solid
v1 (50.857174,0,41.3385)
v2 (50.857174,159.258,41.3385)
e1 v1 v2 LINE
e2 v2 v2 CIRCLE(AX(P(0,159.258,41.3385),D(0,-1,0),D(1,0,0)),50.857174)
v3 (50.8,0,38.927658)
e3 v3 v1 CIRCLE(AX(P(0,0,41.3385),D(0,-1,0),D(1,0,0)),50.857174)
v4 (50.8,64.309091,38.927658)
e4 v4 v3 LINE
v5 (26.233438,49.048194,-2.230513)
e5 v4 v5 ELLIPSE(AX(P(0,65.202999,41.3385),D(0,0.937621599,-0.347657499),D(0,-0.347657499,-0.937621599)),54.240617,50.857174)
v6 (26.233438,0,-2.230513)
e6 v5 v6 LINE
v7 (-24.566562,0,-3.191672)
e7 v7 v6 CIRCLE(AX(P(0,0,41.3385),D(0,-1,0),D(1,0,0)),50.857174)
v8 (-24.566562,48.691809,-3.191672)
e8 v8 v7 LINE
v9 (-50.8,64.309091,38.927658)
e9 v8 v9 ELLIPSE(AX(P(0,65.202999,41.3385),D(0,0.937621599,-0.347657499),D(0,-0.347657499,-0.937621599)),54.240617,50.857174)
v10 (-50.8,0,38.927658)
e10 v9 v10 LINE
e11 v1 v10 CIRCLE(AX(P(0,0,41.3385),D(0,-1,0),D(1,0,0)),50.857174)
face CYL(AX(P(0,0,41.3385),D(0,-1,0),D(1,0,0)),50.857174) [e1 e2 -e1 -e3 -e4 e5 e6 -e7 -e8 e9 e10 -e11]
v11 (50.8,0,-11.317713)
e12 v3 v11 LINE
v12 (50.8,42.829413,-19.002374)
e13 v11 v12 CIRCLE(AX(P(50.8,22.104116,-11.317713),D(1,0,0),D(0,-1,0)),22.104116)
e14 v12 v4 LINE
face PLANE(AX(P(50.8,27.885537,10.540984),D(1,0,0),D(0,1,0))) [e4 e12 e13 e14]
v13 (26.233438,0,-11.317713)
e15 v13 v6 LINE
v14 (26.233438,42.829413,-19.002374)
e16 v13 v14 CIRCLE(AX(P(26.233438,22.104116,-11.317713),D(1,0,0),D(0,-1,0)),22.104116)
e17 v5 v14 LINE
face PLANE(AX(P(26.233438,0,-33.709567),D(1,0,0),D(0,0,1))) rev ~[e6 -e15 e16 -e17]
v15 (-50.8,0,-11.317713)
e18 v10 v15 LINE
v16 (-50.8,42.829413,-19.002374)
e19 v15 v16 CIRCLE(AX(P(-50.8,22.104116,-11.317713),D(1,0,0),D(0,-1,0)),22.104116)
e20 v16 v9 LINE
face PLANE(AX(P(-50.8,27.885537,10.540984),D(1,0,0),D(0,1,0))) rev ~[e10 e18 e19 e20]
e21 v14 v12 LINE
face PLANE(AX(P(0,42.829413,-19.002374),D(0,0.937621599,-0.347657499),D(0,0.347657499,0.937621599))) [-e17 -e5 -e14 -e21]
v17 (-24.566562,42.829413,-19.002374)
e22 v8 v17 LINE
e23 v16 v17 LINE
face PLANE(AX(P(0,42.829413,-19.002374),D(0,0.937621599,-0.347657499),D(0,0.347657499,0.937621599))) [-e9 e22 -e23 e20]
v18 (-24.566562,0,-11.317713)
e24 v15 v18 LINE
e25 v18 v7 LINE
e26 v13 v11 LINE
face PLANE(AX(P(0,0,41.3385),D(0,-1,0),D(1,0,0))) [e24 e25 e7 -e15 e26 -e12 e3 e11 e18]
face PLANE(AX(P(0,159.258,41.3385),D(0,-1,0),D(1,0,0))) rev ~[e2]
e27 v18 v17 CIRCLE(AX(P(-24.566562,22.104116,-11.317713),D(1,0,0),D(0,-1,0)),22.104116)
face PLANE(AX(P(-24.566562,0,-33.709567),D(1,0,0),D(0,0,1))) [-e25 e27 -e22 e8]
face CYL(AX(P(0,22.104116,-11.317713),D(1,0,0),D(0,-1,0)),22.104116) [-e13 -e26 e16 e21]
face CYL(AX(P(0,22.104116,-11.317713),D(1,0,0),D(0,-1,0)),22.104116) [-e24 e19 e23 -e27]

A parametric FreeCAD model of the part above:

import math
import FreeCAD as App
import Part
import Sketcher

V = App.Vector
Q = App.Units.Quantity

doc = App.newDocument("Part")
body = doc.addObject("PartDesign::Body", "Body")
body.AllowCompound = True

# Sketch on YZ plane
sketch1 = body.newObject("Sketcher::SketchObject", "Sketch")
sketch1.AttachmentSupport = (doc.getObject("YZ_Plane"), [""])
sketch1.MapMode = "FlatFace"
sketch1.addGeometry([
    Part.LineSegment(V(0, 40, 0), V(0, -11, 0)),
    Part.ArcOfCircle(Part.Circle(V(22, -11, 0), V(0, 0, 1), 22), math.radians(180), math.radians(340)),
    Part.LineSegment(V(43, -19, 0), V(65, 40, 0)),
    Part.LineSegment(V(65, 40, 0), V(0, 40, 0)),
], False)
sketch1.addConstraint([
    Sketcher.Constraint("Tangent", 0, 2, 1, 1),
    Sketcher.Constraint("Tangent", 1, 2, 2, 1),
    Sketcher.Constraint("Coincident", 2, 2, 3, 1),
    Sketcher.Constraint("Coincident", 3, 2, 0, 1),
    Sketcher.Constraint("Vertical", 0),
    Sketcher.Constraint("Horizontal", 3),
    Sketcher.Constraint("PointOnObject", 0, 2, -2),
    Sketcher.Constraint("Radius", 1, 22.104116),
    Sketcher.Constraint("Distance", 2, 63.28859),
    Sketcher.Constraint("DistanceX", 3, 2, 3, 1, 64.832166),
    Sketcher.Constraint("DistanceY", 1, 3, -1, 1, 11.317713),
])
pad1 = body.newObject("PartDesign::Pad", "Pad")
pad1.Profile = sketch1
pad1.Length = Q("4 in")
pad1.Midplane = True

# Sketch on XZ plane
sketch2 = body.newObject("Sketcher::SketchObject", "Sketch001")
sketch2.AttachmentSupport = (doc.getObject("XZ_Plane"), [""])
sketch2.MapMode = "FlatFace"
sketch2.addGeometry([
    Part.LineSegment(V(-25, 40, 0), V(-25, -34, 0)),
    Part.LineSegment(V(-25, -34, 0), V(26, -34, 0)),
    Part.LineSegment(V(26, -34, 0), V(26, 40, 0)),
    Part.LineSegment(V(26, 40, 0), V(-25, 40, 0)),
], False)
sketch2.addConstraint([
    Sketcher.Constraint("Coincident", 0, 2, 1, 1),
    Sketcher.Constraint("Coincident", 1, 2, 2, 1),
    Sketcher.Constraint("Coincident", 2, 2, 3, 1),
    Sketcher.Constraint("Coincident", 3, 2, 0, 1),
    Sketcher.Constraint("Vertical", 0),
    Sketcher.Constraint("Horizontal", 1),
    Sketcher.Constraint("Vertical", 2),
    Sketcher.Constraint("Horizontal", 3),
    Sketcher.Constraint("DistanceX", 1, 1, 1, 2, Q("2 in")),
    Sketcher.Constraint("DistanceY", 0, 2, 0, 1, Q("2.92 in")),
    Sketcher.Constraint("DistanceX", 0, 2, -1, 1, 24.566562),
    Sketcher.Constraint("DistanceY", 0, 2, -1, 1, 33.709567),
])
pocket1 = body.newObject("PartDesign::Pocket", "Pocket")
pocket1.Profile = sketch2
pocket1.Length = Q("6.72 in")

# Sketch on XZ plane
sketch3 = body.newObject("Sketcher::SketchObject", "Sketch002")
sketch3.AttachmentSupport = (doc.getObject("XZ_Plane"), [""])
sketch3.MapMode = "FlatFace"
sketch3.addGeometry(Part.Circle(V(0, 41, 0), V(0, 0, 1), 51), False)
sketch3.addConstraint([
    Sketcher.Constraint("PointOnObject", 0, 3, -2),
    Sketcher.Constraint("Diameter", 0, 101.714348),
    Sketcher.Constraint("DistanceY", -1, 1, 0, 3, Q("1.6275 in")),
])
pad2 = body.newObject("PartDesign::Pad", "Pad001")
pad2.Profile = sketch3
pad2.Length = Q("6.27 in")
pad2.Reversed = True

doc.recompute()
